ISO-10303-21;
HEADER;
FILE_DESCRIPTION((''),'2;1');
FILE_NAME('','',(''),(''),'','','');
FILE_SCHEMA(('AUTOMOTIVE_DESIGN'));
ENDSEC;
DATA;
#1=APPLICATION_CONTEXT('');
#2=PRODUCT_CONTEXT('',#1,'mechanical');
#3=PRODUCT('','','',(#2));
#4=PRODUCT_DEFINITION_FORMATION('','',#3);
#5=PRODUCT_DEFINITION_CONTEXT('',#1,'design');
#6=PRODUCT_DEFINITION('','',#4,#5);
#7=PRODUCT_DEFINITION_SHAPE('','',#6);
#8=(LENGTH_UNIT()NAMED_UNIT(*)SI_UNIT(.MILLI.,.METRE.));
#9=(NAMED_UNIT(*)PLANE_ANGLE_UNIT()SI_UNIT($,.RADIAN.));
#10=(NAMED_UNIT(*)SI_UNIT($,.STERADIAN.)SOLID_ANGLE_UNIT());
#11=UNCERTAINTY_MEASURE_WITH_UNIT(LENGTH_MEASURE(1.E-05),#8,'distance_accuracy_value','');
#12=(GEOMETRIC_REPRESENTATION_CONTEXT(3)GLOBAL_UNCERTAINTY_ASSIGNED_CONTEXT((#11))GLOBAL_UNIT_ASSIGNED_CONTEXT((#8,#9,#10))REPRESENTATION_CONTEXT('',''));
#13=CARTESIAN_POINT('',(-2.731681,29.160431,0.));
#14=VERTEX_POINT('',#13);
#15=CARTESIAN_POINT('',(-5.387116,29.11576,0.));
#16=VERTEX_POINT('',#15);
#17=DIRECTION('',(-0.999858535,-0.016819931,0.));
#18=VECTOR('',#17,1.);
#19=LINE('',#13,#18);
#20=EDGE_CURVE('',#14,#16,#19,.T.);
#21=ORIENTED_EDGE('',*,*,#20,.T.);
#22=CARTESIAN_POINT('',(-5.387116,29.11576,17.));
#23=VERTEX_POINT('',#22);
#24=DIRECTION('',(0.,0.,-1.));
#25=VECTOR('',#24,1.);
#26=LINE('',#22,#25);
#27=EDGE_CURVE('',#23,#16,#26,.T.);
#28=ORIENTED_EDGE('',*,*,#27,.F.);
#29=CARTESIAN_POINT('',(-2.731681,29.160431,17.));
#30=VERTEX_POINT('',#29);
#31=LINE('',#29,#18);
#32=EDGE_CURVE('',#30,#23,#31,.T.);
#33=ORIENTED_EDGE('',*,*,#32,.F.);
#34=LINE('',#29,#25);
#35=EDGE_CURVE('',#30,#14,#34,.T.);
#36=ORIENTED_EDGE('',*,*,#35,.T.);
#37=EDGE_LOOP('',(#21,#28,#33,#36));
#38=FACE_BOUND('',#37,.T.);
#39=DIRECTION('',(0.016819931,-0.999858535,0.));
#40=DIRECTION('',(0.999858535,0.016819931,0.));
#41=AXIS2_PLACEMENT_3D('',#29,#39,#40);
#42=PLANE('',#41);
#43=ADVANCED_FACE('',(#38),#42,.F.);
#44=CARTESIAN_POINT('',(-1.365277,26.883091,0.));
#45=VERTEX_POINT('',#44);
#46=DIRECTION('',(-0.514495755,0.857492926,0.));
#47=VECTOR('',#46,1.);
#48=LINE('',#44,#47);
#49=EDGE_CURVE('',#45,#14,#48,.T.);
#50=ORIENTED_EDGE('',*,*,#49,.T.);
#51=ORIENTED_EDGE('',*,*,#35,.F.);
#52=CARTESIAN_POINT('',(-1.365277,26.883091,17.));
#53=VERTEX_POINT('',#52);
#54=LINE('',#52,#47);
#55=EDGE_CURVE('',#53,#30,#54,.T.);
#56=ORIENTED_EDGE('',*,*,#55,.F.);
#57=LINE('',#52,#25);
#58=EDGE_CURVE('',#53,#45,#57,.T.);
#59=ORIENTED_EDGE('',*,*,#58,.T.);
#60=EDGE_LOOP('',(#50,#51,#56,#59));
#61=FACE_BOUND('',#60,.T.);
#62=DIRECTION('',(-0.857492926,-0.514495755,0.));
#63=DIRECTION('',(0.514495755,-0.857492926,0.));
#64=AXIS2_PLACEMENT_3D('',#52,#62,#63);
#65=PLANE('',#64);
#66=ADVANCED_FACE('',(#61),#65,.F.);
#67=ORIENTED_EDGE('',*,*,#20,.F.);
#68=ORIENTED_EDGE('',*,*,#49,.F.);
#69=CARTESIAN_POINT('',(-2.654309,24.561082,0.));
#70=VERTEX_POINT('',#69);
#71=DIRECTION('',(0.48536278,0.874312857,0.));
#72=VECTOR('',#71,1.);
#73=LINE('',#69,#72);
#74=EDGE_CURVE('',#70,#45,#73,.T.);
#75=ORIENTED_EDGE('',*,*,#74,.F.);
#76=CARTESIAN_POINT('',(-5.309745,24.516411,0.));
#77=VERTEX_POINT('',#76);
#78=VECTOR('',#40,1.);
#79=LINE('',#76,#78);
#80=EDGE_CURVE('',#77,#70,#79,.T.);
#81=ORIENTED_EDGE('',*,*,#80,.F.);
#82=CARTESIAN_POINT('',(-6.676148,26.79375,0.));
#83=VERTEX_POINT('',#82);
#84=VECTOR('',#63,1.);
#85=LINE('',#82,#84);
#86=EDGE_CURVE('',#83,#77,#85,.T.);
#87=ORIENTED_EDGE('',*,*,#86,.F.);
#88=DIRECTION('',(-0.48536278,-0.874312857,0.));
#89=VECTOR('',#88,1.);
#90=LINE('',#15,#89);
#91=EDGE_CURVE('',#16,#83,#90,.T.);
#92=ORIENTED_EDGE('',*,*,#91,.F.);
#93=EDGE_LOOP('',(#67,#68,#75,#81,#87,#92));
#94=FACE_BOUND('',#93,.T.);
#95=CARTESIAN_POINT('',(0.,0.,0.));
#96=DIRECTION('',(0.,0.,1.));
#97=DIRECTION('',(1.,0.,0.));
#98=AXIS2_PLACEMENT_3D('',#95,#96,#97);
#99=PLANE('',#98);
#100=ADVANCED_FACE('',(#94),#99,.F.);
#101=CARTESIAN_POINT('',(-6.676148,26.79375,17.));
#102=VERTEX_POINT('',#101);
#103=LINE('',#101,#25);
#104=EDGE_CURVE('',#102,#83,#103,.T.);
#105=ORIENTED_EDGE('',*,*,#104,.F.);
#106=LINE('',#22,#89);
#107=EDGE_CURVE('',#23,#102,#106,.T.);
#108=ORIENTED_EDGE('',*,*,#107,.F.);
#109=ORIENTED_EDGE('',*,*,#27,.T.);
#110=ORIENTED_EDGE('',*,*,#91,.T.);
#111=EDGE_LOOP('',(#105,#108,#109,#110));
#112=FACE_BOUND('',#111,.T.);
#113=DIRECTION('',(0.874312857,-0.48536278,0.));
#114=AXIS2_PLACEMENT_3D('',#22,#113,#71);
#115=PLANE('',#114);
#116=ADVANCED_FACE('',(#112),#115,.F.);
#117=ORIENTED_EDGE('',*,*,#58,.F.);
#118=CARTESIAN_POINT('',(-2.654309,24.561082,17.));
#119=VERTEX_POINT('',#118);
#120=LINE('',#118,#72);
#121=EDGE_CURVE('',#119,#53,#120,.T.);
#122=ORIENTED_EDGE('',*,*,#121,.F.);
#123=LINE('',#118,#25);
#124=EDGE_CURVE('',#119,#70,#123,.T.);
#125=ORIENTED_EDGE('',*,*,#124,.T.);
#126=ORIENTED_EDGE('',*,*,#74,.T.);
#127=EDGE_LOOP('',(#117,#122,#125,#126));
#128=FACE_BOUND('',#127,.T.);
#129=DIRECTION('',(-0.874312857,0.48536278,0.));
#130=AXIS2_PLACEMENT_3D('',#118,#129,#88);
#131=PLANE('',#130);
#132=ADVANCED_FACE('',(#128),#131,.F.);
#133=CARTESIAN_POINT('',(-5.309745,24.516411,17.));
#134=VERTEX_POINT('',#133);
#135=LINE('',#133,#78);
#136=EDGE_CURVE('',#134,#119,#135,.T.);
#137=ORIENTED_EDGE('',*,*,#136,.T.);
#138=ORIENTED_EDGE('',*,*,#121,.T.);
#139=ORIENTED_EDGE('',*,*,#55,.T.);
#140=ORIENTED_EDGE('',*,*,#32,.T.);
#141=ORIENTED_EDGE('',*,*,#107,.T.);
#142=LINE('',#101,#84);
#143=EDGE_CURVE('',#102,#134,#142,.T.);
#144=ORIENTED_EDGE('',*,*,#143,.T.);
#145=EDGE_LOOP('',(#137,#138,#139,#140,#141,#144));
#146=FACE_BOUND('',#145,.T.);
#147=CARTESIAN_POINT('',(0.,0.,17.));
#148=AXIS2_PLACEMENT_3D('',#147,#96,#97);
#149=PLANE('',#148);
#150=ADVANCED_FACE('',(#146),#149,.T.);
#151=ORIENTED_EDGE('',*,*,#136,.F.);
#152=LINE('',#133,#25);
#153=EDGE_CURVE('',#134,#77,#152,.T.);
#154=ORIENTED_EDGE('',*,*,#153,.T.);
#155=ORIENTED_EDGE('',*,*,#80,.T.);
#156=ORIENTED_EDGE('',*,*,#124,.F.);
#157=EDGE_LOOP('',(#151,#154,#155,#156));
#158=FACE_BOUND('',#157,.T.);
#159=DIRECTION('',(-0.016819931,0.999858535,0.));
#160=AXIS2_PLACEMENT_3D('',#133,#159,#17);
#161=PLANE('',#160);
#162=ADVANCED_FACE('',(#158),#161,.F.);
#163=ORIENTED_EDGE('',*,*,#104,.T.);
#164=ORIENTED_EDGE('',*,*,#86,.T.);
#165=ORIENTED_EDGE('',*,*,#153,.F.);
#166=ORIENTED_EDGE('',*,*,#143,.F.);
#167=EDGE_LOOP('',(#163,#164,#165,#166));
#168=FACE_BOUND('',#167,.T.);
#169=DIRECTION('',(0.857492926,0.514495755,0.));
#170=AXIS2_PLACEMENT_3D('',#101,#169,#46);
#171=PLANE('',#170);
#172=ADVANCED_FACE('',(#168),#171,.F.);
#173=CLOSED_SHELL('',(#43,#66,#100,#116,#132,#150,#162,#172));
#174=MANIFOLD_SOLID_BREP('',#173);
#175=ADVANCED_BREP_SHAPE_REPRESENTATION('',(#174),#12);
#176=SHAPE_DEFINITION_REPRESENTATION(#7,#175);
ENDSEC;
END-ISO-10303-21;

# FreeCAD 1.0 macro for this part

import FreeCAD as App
import Part
import Sketcher
from FreeCAD import Vector


def add_polygon(sketch, points):
    """Adds a closed chain of lines whose ends are joined by coincident constraints."""
    first, n = sketch.GeometryCount, len(points)
    for a, b in zip(points, points[1:] + points[:1]):
        sketch.addGeometry(Part.LineSegment(App.Vector(*a, 0), App.Vector(*b, 0)), False)
    for i in range(n):
        sketch.addConstraint(Sketcher.Constraint("Coincident", first + i, 2, first + (i + 1) % n, 1))

doc = App.newDocument("Part")
body = doc.addObject("PartDesign::Body", "Body")

# Sketch on XY plane
sketch1 = body.newObject("Sketcher::SketchObject", "Sketch")
sketch1.AttachmentSupport = (doc.getObject("XY_Plane"), [""])
sketch1.MapMode = "FlatFace"
add_polygon(sketch1, [(-2.654309, 24.561082), (-1.365277, 26.883091), (-2.731681, 29.160431), (-5.387116, 29.11576), (-6.676148, 26.79375), (-5.309745, 24.516411)])  # lines 0-5
sketch1.addConstraint([
    Sketcher.Constraint("Parallel", 0, 3),
    Sketcher.Constraint("Parallel", 1, 4),
    Sketcher.Constraint("Parallel", 2, 5),
    Sketcher.Constraint("Equal", 0, 1),
    Sketcher.Constraint("Equal", 1, 2),
    Sketcher.Constraint("Equal", 2, 3),
    Sketcher.Constraint("Distance", 0, 2.655811),
    Sketcher.Constraint("DistanceY", -1, 1, 0, 2, 26.883091),
    Sketcher.Constraint("DistanceX", 1, 2, -1, 1, 2.731681),
    Sketcher.Constraint("DistanceY", -1, 1, 1, 2, 29.160431),
    Sketcher.Constraint("DistanceY", -1, 1, 2, 2, 29.11576),
    Sketcher.Constraint("DistanceX", 3, 2, -1, 1, 6.676148),
])
pad1 = body.newObject("PartDesign::Pad", "Pad")
pad1.Profile = sketch1
pad1.Length = 17

doc.recompute()
